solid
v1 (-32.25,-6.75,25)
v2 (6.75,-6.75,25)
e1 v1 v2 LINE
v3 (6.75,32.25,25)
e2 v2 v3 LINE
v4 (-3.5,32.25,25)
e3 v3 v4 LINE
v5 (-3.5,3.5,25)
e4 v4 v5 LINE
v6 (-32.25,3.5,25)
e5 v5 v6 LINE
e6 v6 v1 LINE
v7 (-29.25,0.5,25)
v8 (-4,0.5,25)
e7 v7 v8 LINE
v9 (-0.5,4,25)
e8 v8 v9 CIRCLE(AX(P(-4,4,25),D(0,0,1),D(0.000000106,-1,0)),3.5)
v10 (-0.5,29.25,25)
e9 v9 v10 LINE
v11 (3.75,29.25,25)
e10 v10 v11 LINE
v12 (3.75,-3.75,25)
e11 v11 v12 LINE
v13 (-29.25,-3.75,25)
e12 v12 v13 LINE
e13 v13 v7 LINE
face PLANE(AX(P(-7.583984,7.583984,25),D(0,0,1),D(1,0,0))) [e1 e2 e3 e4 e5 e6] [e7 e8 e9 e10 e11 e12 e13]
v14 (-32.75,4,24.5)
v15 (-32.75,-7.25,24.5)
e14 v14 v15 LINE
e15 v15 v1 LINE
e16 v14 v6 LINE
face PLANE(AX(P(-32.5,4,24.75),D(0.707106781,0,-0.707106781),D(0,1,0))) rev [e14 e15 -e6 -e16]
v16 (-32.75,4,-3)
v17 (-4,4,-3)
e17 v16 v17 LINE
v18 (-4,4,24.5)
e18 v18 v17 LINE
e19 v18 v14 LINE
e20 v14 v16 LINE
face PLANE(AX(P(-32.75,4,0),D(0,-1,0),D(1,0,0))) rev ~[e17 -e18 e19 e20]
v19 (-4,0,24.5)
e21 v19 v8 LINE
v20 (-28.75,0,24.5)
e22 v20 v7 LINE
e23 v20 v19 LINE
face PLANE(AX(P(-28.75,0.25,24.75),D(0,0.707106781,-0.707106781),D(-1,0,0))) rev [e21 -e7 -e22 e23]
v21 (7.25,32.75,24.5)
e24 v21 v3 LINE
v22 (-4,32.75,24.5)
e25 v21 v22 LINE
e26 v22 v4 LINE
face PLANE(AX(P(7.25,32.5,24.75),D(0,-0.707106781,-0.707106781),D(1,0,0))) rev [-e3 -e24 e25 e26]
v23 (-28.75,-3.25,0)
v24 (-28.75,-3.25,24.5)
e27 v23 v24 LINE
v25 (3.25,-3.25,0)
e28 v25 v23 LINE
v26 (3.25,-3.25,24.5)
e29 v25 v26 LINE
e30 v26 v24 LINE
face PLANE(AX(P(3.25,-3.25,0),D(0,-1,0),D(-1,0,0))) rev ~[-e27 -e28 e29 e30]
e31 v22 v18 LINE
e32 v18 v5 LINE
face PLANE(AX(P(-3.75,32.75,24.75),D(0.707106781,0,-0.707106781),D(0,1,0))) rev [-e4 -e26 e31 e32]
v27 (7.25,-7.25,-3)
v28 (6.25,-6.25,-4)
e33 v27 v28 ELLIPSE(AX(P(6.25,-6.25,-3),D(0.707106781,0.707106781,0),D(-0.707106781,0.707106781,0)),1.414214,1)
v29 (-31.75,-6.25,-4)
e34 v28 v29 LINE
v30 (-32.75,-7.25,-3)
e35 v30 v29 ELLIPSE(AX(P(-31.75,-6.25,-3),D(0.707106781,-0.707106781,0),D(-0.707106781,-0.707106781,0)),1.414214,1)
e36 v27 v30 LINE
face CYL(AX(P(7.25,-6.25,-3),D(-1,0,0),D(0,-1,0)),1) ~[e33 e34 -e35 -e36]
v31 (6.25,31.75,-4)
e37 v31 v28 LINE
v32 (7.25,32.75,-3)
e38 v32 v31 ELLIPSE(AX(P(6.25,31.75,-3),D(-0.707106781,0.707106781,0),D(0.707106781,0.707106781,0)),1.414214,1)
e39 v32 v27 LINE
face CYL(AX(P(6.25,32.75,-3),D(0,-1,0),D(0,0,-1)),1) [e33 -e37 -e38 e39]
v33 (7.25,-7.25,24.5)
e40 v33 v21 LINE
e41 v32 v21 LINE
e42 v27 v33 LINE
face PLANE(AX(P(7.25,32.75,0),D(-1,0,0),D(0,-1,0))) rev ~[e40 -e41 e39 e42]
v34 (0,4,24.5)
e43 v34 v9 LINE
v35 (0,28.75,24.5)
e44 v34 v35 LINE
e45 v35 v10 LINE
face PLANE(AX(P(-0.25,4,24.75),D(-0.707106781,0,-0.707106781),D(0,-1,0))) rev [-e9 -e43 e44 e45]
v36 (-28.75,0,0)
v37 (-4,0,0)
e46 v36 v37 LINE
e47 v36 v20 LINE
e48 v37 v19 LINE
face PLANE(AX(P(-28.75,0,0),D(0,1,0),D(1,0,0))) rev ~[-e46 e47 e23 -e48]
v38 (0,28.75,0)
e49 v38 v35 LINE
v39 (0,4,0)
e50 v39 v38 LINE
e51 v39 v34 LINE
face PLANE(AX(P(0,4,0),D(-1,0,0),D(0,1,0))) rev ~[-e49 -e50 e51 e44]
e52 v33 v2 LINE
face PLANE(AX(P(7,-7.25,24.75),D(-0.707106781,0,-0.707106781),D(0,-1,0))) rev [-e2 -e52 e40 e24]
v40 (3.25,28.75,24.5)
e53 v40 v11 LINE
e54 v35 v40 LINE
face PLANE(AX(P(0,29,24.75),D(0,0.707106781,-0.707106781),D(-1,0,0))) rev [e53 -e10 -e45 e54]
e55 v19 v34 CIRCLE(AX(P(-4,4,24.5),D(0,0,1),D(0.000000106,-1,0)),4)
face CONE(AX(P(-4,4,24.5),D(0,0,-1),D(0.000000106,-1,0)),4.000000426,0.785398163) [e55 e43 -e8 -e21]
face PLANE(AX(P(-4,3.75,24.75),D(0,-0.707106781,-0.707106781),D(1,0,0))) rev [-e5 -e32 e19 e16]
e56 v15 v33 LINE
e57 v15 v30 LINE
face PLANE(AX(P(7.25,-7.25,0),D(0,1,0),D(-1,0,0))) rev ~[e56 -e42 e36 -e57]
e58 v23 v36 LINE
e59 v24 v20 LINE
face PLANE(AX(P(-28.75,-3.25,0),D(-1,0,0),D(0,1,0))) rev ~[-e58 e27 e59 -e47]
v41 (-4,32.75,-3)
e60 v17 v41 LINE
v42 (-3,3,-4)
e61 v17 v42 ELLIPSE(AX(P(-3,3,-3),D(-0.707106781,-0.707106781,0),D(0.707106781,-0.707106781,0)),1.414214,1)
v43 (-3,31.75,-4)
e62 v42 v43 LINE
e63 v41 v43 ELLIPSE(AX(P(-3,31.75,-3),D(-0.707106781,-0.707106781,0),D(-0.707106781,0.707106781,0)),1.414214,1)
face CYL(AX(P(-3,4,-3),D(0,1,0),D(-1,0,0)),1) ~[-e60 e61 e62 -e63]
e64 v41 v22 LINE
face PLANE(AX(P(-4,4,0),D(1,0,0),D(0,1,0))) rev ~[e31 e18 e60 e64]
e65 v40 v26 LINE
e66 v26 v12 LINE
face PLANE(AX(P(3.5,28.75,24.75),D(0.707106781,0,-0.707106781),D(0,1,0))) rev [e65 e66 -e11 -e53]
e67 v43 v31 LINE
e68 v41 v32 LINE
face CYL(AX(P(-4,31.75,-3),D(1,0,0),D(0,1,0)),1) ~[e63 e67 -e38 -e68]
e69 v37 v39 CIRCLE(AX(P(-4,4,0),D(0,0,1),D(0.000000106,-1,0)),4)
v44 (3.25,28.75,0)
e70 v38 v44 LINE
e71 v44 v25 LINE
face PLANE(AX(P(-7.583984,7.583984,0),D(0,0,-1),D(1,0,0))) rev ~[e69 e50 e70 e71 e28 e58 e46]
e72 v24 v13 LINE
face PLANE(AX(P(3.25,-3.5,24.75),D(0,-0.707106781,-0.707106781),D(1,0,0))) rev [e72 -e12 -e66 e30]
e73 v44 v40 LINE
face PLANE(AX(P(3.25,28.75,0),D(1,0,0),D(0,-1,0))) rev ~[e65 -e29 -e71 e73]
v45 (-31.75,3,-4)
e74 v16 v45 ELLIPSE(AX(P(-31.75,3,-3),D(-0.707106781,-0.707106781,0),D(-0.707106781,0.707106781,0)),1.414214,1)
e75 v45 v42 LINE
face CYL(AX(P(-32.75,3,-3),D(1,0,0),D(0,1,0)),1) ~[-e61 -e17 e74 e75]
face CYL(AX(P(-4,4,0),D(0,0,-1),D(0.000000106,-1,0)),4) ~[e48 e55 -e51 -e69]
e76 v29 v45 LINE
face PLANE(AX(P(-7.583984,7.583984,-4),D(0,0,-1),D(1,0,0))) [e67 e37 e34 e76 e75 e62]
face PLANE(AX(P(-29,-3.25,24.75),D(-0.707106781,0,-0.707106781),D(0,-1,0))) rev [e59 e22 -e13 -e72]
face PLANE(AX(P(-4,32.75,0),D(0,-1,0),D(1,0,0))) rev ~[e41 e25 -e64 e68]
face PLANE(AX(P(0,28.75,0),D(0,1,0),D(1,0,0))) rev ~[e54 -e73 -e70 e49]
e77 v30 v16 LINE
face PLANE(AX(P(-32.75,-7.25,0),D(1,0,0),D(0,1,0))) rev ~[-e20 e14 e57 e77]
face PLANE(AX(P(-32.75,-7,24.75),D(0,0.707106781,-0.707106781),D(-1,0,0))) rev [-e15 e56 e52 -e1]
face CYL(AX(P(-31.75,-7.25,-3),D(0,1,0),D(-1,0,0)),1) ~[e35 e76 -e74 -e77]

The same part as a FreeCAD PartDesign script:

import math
import FreeCAD as App
import Part
import Sketcher
from FreeCAD import Vector


def edges_at(feature, points):
    """Names of the edges that pass closest to the given points."""
    edges = feature.Shape.Edges
    near = lambda p: min(range(len(edges)), key=lambda i: edges[i].distToShape(Part.Vertex(*p))[0])
    return sorted({f"Edge{near(p) + 1}" for p in points})


def add_polygon(sketch, points):
    """Adds a closed chain of lines whose ends are joined by coincident constraints."""
    first, n = sketch.GeometryCount, len(points)
    for a, b in zip(points, points[1:] + points[:1]):
        sketch.addGeometry(Part.LineSegment(App.Vector(*a, 0), App.Vector(*b, 0)), False)
    for i in range(n):
        sketch.addConstraint(Sketcher.Constraint("Coincident", first + i, 2, first + (i + 1) % n, 1))

doc = App.newDocument("Part")
body = doc.addObject("PartDesign::Body", "Body")

sketch1 = doc.addObject("Sketcher::SketchObject", "Sketch")
body.addObject(sketch1)
sketch1.AttachmentSupport = (doc.XY_Plane, [""])
sketch1.MapMode = "FlatFace"
add_polygon(sketch1, [(-32.8, 4), (-32.8, -7.2), (7.2, -7.2), (7.2, 32.8), (-4, 32.8), (-4, 4)])
sketch1.addGeometry(Part.ArcOfCircle(Part.Circle(Vector(-4, 4, 0), Vector(0, 0, 1), 4), math.radians(-90), math.radians(0)), False)
sketch1.addGeometry(Part.LineSegment(Vector(0, 4, 0), Vector(0, 28.8, 0)), False)
sketch1.addGeometry(Part.LineSegment(Vector(0, 28.8, 0), Vector(3.2, 28.8, 0)), False)
sketch1.addGeometry(Part.LineSegment(Vector(3.2, 28.8, 0), Vector(3.2, -3.2, 0)), False)
sketch1.addGeometry(Part.LineSegment(Vector(3.2, -3.2, 0), Vector(-28.8, -3.2, 0)), False)
sketch1.addGeometry(Part.LineSegment(Vector(-28.8, -3.2, 0), Vector(-28.8, 0, 0)), False)
sketch1.addGeometry(Part.LineSegment(Vector(-28.8, 0, 0), Vector(-4, 0, 0)), False)
sketch1.addConstraint([
    Sketcher.Constraint("Tangent", 6, 2, 7, 1),
    Sketcher.Constraint("Coincident", 7, 2, 8, 1),
    Sketcher.Constraint("Coincident", 8, 2, 9, 1),
    Sketcher.Constraint("Coincident", 9, 2, 10, 1),
    Sketcher.Constraint("Coincident", 10, 2, 11, 1),
    Sketcher.Constraint("Coincident", 11, 2, 12, 1),
    Sketcher.Constraint("Tangent", 12, 2, 6, 1),
    Sketcher.Constraint("Vertical", 0),
    Sketcher.Constraint("Horizontal", 1),
    Sketcher.Constraint("Vertical", 2),
    Sketcher.Constraint("Horizontal", 3),
    Sketcher.Constraint("Vertical", 4),
    Sketcher.Constraint("Horizontal", 5),
    Sketcher.Constraint("Vertical", 7),
    Sketcher.Constraint("Horizontal", 8),
    Sketcher.Constraint("Vertical", 9),
    Sketcher.Constraint("Horizontal", 10),
    Sketcher.Constraint("Vertical", 11),
    Sketcher.Constraint("Horizontal", 12),
    Sketcher.Constraint("Coincident", 4, 2, 6, 3),
    Sketcher.Constraint("PointOnObject", 6, 2, -2),
    Sketcher.Constraint("PointOnObject", 11, 2, -1),
    Sketcher.Constraint("Equal", 3, 0),
    Sketcher.Constraint("Equal", 1, 2),
    Sketcher.Constraint("Equal", 12, 7),
    Sketcher.Constraint("Equal", 10, 9),
    Sketcher.Constraint("Radius", 6, 4.0),
    Sketcher.Constraint("DistanceX", 1, 1, 1, 2, 40.0),
    Sketcher.Constraint("DistanceX", 10, 2, 10, 1, 32.0),
    Sketcher.Constraint("DistanceY", 7, 2, 3, 2, 4.0),
    Sketcher.Constraint("DistanceX", 3, 2, 3, 1, 11.25),
])
pad1 = doc.addObject("PartDesign::Pad", "Pad")
body.addObject(pad1)
pad1.Profile = sketch1
pad1.Length = 25
doc.recompute()

chamfer = doc.addObject("PartDesign::Chamfer", "Chamfer")
body.addObject(chamfer)
chamfer.Base = (pad1, edges_at(pad1, [
    (-32.75, -1.625, 25),
    (-12.75, -7.25, 25),
    (7.25, 12.75, 25),
    (1.625, 32.75, 25),
    (-4, 18.375, 25),
    (-18.375, 4, 25),
    (0, 16.375, 25),
    (1.625, 28.75, 25),
    (3.25, 12.75, 25),
    (-12.75, -3.25, 25),
    (-28.75, -1.625, 25),
    (-16.375, 0, 25),
    (-1.172, 1.172, 25),
]))
chamfer.Size = 0.5

sketch2 = doc.addObject("Sketcher::SketchObject", "Sketch001")
body.addObject(sketch2)
sketch2.AttachmentSupport = (doc.XY_Plane, [""])
sketch2.MapMode = "FlatFace"
add_polygon(sketch2, [(7, -7), (-33, -7), (-33, 4), (-4, 4), (-4, 33), (7, 33)])
sketch2.addConstraint([
    Sketcher.Constraint("Horizontal", 0),
    Sketcher.Constraint("Vertical", 1),
    Sketcher.Constraint("Horizontal", 2),
    Sketcher.Constraint("Vertical", 3),
    Sketcher.Constraint("Horizontal", 4),
    Sketcher.Constraint("Vertical", 5),
    Sketcher.Constraint("Equal", 4, 1),
    Sketcher.Constraint("Equal", 2, 3),
    Sketcher.Constraint("DistanceX", 0, 2, 0, 1, 40.0),
    Sketcher.Constraint("DistanceY", -1, 1, 1, 2, 4.0),
    Sketcher.Constraint("DistanceX", 2, 2, -1, 1, 4.0),
    Sketcher.Constraint("DistanceX", 2, 1, 2, 2, 28.75),
])
pad2 = doc.addObject("PartDesign::Pad", "Pad001")
body.addObject(pad2)
pad2.Profile = sketch2
pad2.Length = 4
pad2.Reversed = True
doc.recompute()

fillet = doc.addObject("PartDesign::Fillet", "Fillet")
body.addObject(fillet)
fillet.Base = (pad2, edges_at(pad2, [
    (-12.75, -7.25, -4),
    (-32.75, -1.625, -4),
    (-18.375, 4, -4),
    (-4, 18.375, -4),
    (1.625, 32.75, -4),
    (7.25, 12.75, -4),
]))
fillet.Radius = 1

doc.recompute()
